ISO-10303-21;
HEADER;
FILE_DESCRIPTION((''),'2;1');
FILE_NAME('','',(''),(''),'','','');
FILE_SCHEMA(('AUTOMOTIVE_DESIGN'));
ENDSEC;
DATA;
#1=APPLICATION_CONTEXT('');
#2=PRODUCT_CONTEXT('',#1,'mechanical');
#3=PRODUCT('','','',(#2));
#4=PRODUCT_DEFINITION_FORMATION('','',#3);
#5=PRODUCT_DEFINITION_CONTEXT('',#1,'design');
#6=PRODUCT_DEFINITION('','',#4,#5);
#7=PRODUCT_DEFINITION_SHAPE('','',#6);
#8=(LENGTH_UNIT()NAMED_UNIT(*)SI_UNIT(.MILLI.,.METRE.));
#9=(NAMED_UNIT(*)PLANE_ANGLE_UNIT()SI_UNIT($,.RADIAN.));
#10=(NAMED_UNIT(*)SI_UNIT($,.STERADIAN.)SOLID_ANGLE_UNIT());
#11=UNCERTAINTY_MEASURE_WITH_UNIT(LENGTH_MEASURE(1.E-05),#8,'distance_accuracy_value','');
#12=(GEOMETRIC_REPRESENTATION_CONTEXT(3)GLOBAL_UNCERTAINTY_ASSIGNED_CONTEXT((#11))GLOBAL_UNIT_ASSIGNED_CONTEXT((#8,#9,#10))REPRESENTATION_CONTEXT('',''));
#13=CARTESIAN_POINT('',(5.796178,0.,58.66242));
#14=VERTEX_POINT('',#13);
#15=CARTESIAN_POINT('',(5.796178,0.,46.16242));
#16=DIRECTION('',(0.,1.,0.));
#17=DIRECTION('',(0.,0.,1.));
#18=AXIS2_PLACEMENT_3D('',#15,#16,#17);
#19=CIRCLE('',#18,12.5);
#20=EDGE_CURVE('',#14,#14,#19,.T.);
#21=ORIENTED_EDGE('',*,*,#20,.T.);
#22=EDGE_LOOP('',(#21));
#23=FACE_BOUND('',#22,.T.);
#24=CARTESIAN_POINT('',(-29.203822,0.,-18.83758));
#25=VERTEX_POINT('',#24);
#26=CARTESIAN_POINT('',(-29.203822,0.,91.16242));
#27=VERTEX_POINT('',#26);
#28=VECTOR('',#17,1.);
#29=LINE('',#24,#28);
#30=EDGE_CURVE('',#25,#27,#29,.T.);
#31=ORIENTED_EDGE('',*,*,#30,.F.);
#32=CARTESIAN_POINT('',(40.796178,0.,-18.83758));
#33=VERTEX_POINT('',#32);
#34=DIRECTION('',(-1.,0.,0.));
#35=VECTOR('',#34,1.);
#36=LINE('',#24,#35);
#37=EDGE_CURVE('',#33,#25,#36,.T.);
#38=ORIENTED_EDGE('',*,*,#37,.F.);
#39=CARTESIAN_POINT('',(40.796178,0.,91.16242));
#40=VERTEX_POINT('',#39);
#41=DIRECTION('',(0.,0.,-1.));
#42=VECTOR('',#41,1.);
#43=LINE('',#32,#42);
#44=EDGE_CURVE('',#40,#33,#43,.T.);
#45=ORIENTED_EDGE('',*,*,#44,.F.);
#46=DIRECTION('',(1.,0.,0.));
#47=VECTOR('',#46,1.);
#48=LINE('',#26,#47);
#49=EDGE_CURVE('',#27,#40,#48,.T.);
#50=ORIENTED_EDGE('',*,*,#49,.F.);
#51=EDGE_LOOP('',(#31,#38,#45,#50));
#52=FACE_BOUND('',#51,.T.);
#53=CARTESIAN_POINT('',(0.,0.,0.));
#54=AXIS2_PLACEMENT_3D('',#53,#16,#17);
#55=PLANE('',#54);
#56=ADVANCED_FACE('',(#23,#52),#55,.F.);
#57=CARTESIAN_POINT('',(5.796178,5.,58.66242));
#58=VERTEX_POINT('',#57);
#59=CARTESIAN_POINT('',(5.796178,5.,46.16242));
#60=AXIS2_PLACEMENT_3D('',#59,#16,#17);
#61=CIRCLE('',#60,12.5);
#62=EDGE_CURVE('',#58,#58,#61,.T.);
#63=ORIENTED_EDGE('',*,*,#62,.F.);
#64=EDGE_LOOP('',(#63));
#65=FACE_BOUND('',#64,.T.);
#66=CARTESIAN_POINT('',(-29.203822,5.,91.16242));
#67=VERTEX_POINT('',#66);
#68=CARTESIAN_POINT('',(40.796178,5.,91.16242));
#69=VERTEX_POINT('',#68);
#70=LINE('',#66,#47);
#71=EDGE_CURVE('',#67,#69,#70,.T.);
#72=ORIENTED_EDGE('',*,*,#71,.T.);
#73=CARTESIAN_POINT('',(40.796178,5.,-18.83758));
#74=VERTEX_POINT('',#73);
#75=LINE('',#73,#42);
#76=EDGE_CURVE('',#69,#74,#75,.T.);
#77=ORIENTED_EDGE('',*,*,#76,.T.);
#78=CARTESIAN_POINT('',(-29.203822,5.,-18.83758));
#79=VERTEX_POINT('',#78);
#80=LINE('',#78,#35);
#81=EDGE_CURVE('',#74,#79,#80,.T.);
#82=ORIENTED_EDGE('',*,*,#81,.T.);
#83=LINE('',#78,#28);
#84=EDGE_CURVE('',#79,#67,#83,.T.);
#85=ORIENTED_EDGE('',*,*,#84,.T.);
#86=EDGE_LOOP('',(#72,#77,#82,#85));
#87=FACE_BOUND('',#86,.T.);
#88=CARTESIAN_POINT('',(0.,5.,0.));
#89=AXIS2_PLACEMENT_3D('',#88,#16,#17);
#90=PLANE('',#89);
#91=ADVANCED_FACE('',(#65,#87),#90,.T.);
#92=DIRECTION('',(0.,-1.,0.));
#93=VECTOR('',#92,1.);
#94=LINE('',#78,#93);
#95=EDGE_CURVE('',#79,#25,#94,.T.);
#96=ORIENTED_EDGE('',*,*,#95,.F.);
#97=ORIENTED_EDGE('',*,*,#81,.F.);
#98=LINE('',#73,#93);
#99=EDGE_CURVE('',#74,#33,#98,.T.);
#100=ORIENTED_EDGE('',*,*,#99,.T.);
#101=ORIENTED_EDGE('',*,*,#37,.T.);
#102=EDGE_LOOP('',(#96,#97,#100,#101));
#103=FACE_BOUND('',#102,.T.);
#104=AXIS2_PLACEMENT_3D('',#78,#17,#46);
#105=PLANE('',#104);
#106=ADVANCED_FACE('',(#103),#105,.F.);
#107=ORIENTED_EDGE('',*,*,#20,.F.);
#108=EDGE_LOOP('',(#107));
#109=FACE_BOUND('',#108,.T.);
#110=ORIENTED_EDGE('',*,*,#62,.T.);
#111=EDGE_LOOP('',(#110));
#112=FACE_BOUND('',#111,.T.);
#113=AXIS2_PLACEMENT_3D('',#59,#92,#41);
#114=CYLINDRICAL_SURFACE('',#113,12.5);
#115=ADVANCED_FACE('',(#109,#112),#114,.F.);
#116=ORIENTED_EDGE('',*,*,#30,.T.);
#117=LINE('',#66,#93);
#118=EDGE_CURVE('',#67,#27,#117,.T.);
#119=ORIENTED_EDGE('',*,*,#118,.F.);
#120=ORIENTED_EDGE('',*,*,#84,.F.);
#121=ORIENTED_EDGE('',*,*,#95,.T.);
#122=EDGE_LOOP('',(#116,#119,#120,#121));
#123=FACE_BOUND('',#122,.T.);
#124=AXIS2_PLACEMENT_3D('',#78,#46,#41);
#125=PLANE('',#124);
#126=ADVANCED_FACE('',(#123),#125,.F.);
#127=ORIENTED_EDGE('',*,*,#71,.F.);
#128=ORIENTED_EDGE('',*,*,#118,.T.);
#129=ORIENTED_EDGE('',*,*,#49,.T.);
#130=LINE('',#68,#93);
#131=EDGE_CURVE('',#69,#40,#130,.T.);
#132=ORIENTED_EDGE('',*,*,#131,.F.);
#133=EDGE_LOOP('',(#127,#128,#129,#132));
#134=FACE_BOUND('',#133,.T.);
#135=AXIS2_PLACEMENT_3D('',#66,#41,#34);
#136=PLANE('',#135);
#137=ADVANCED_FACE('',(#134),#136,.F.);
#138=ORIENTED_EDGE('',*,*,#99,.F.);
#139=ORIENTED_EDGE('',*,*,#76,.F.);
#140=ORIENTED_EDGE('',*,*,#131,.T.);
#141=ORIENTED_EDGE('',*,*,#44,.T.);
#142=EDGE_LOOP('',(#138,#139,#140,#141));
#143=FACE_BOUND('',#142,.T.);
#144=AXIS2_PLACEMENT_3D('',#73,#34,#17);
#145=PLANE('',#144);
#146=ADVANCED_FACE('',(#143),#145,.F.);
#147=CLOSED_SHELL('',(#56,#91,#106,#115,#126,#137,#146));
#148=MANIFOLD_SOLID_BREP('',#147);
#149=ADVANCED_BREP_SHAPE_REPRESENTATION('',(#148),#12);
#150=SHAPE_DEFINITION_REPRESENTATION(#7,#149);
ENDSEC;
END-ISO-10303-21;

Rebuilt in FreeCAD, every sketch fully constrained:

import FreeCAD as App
import Part
import Sketcher

doc = App.newDocument("Part")
body = doc.addObject("PartDesign::Body", "Body")

# Sketch on XZ plane
sketch1 = body.newObject("Sketcher::SketchObject", "Sketch")
sketch1.AttachmentSupport = (doc.getObject("XZ_Plane"), [""])
sketch1.MapMode = "FlatFace"
sketch1.addGeometry([
    Part.LineSegment(App.Vector(-29, -19, 0), App.Vector(-29, 91, 0)),  # 0
    Part.LineSegment(App.Vector(-29, 91, 0), App.Vector(41, 91, 0)),  # 1
    Part.LineSegment(App.Vector(41, 91, 0), App.Vector(41, -19, 0)),  # 2
    Part.LineSegment(App.Vector(41, -19, 0), App.Vector(-29, -19, 0)),  # 3
    Part.Circle(App.Vector(6, 46, 0), App.Vector(0, 0, 1), 12),  # 4
], False)
sketch1.addConstraint([
    Sketcher.Constraint("Coincident", 0, 2, 1, 1),
    Sketcher.Constraint("Coincident", 1, 2, 2, 1),
    Sketcher.Constraint("Coincident", 2, 2, 3, 1),
    Sketcher.Constraint("Coincident", 3, 2, 0, 1),
    Sketcher.Constraint("Vertical", 0),
    Sketcher.Constraint("Horizontal", 1),
    Sketcher.Constraint("Vertical", 2),
    Sketcher.Constraint("Horizontal", 3),
    Sketcher.Constraint("Diameter", 4, 25.0),
    Sketcher.Constraint("DistanceX", 1, 1, 1, 2, 70.0),
    Sketcher.Constraint("DistanceY", 0, 1, 0, 2, 110.0),
    Sketcher.Constraint("DistanceX", 0, 2, 4, 3, 35.0),
    Sketcher.Constraint("DistanceY", 4, 3, 0, 2, 45.0),
    Sketcher.Constraint("DistanceX", -1, 1, 4, 3, 5.796178),
    Sketcher.Constraint("DistanceY", -1, 1, 4, 3, 46.16242),
])
pad1 = body.newObject("PartDesign::Pad", "Pad")
pad1.Profile = sketch1
pad1.Length = 5
pad1.Reversed = True

doc.recompute()
